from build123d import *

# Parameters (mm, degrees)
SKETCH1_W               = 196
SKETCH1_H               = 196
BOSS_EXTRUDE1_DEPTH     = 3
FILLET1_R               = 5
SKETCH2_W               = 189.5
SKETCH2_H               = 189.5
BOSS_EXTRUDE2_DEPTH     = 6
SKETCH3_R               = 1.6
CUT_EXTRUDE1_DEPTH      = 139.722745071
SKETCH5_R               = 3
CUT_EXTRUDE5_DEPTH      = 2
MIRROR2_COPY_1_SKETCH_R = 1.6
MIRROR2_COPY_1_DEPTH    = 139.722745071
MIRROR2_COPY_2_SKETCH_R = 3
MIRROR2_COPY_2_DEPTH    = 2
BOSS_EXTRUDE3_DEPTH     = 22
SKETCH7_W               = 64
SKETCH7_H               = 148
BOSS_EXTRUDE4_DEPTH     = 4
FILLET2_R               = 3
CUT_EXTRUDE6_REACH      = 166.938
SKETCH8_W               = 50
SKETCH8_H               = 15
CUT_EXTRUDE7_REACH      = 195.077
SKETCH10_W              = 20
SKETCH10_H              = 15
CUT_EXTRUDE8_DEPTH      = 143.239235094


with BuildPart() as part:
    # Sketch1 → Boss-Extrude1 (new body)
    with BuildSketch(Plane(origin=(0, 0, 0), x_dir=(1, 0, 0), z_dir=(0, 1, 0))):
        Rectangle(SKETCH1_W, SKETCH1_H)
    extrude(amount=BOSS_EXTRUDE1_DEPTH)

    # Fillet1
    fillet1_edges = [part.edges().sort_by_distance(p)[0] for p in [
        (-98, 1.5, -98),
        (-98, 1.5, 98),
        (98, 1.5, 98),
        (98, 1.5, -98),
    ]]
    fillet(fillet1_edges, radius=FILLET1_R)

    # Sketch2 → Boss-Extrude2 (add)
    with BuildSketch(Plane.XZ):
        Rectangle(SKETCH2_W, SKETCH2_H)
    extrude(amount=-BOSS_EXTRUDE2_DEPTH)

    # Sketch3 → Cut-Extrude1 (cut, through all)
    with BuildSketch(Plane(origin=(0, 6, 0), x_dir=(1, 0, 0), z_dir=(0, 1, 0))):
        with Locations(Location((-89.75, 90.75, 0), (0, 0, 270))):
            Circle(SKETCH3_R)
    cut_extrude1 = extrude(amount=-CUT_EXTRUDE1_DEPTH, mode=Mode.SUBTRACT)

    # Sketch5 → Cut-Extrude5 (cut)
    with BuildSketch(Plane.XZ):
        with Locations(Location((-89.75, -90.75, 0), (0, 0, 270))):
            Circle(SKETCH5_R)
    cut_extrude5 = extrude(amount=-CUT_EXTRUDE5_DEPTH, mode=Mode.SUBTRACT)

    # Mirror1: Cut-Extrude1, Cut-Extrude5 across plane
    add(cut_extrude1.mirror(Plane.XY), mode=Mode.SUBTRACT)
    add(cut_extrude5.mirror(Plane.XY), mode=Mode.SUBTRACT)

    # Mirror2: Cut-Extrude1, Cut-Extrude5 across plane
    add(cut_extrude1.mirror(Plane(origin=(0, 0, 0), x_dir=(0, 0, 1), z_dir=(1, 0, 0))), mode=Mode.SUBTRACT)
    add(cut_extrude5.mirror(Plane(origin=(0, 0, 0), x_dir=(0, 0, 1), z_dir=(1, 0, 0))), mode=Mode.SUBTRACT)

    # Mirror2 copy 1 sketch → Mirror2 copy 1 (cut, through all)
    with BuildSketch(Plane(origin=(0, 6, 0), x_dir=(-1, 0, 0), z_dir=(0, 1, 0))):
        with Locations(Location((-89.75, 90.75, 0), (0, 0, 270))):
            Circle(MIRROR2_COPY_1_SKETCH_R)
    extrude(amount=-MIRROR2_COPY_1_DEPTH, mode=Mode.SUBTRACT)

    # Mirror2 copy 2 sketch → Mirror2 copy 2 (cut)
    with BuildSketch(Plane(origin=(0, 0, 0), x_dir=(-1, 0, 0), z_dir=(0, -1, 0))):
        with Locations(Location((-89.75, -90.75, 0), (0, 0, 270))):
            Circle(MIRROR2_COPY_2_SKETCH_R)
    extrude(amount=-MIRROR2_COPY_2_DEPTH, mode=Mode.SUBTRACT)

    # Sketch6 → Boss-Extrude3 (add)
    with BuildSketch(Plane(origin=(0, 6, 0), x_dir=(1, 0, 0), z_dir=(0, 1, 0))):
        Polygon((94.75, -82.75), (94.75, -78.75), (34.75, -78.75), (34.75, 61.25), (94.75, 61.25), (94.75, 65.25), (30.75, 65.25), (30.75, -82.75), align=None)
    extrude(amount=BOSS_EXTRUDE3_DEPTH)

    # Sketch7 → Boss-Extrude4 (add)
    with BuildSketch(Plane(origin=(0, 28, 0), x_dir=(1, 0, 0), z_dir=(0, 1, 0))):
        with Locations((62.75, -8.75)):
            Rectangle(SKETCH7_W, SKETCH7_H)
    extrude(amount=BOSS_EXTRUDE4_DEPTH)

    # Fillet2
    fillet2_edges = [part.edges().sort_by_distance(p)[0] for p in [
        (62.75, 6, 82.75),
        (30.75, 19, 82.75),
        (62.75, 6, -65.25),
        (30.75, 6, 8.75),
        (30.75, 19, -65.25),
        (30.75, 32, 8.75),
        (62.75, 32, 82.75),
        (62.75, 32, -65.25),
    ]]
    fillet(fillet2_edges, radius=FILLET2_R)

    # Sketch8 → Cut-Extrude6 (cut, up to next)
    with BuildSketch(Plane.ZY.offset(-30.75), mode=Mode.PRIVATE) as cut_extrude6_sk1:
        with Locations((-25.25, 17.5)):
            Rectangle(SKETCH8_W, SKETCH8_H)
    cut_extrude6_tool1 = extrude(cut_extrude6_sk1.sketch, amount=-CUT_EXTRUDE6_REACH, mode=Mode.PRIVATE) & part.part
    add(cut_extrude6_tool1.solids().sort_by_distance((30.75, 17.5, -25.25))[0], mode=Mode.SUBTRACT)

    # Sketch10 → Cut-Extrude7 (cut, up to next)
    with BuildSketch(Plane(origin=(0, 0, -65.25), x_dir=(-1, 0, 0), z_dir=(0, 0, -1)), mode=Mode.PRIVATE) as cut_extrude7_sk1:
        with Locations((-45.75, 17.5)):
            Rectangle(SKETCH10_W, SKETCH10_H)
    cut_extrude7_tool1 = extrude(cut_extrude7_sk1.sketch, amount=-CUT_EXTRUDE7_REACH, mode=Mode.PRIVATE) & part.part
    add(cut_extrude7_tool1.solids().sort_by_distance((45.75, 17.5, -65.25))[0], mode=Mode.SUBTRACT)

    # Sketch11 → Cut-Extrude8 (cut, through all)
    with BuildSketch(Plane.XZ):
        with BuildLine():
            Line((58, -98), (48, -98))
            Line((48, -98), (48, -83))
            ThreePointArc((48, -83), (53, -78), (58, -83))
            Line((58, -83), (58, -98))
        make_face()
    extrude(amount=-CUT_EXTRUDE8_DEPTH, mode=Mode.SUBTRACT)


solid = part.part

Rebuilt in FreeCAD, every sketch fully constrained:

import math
import FreeCAD as App
import Part
import Sketcher
Q = App.Units.Quantity


def edges_at(feature, points):
    """Names of the edges that pass closest to the given points."""
    edges = feature.Shape.Edges
    near = lambda p: min(range(len(edges)), key=lambda i: edges[i].distToShape(Part.Vertex(*p))[0])
    return sorted({f"Edge{near(p) + 1}" for p in points})

doc = App.newDocument("Part")
body = doc.addObject("PartDesign::Body", "Body")

sketch1 = doc.addObject("Sketcher::SketchObject", "Sketch")
body.addObject(sketch1)
sketch1.AttachmentSupport = (doc.XZ_Plane, [""])
sketch1.MapMode = "FlatFace"
sketch1.addGeometry([
    Part.LineSegment(App.Vector(-98, -98, 0), App.Vector(-98, 98, 0)),
    Part.LineSegment(App.Vector(-98, 98, 0), App.Vector(98, 98, 0)),
    Part.LineSegment(App.Vector(98, 98, 0), App.Vector(98, -98, 0)),
    Part.LineSegment(App.Vector(98, -98, 0), App.Vector(-98, -98, 0)),
], False)
sketch1.addConstraint([
    Sketcher.Constraint("Coincident", 0, 2, 1, 1),
    Sketcher.Constraint("Coincident", 1, 2, 2, 1),
    Sketcher.Constraint("Coincident", 2, 2, 3, 1),
    Sketcher.Constraint("Coincident", 3, 2, 0, 1),
    Sketcher.Constraint("Vertical", 0),
    Sketcher.Constraint("Horizontal", 1),
    Sketcher.Constraint("Vertical", 2),
    Sketcher.Constraint("Horizontal", 3),
    Sketcher.Constraint("Symmetric", 0, 2, 2, 2, -1, 1),
    Sketcher.Constraint("Equal", 3, 0),
    Sketcher.Constraint("DistanceX", 1, 1, 1, 2, Q("196 mm")),
])
pad1 = doc.addObject("PartDesign::Pad", "Pad")
body.addObject(pad1)
pad1.Profile = sketch1
pad1.Length = 3
pad1.Reversed = True
doc.recompute()

fillet = doc.addObject("PartDesign::Fillet", "Fillet")
body.addObject(fillet)
fillet.Base = (pad1, edges_at(pad1, [
    (-98, 1.5, -98),
    (-98, 1.5, 98),
    (98, 1.5, 98),
    (98, 1.5, -98),
]))
fillet.Radius = 5

sketch2 = doc.addObject("Sketcher::SketchObject", "Sketch001")
body.addObject(sketch2)
sketch2.AttachmentSupport = (doc.XZ_Plane, [""])
sketch2.MapMode = "FlatFace"
sketch2.addGeometry([
    Part.LineSegment(App.Vector(-94.75, 94.75, 0), App.Vector(-94.75, -94.75, 0)),
    Part.LineSegment(App.Vector(-94.75, -94.75, 0), App.Vector(94.75, -94.75, 0)),
    Part.LineSegment(App.Vector(94.75, -94.75, 0), App.Vector(94.75, 94.75, 0)),
    Part.LineSegment(App.Vector(94.75, 94.75, 0), App.Vector(-94.75, 94.75, 0)),
], False)
sketch2.addConstraint([
    Sketcher.Constraint("Coincident", 0, 2, 1, 1),
    Sketcher.Constraint("Coincident", 1, 2, 2, 1),
    Sketcher.Constraint("Coincident", 2, 2, 3, 1),
    Sketcher.Constraint("Coincident", 3, 2, 0, 1),
    Sketcher.Constraint("Vertical", 0),
    Sketcher.Constraint("Horizontal", 1),
    Sketcher.Constraint("Vertical", 2),
    Sketcher.Constraint("Horizontal", 3),
    Sketcher.Constraint("Symmetric", 0, 2, 2, 2, -1, 1),
    Sketcher.Constraint("Equal", 3, 0),
    Sketcher.Constraint("DistanceX", 1, 1, 1, 2, Q("189.5 mm")),
])
pad2 = doc.addObject("PartDesign::Pad", "Pad001")
body.addObject(pad2)
pad2.Profile = sketch2
pad2.Length = 6
pad2.Reversed = True

sketch3 = doc.addObject("Sketcher::SketchObject", "Sketch002")
body.addObject(sketch3)
sketch3.AttachmentSupport = (doc.XZ_Plane, [""])
sketch3.MapMode = "FlatFace"
sketch3.AttachmentOffset = App.Placement(App.Vector(0, 0, -6), App.Rotation())
sketch3.addGeometry(Part.Circle(App.Vector(-89.75, -90.75, 0), App.Vector(0, 0, 1), 1.6), False)
sketch3.addConstraint([
    Sketcher.Constraint("Diameter", 0, Q("3.2 mm")),
    Sketcher.Constraint("DistanceX", 0, 3, -1, 1, Q("89.75 mm")),
    Sketcher.Constraint("DistanceY", 0, 3, -1, 1, Q("90.75 mm")),
])
pocket1 = doc.addObject("PartDesign::Pocket", "Pocket")
body.addObject(pocket1)
pocket1.Profile = sketch3
pocket1.Type = "ThroughAll"
pocket1.Reversed = True

sketch4 = doc.addObject("Sketcher::SketchObject", "Sketch003")
body.addObject(sketch4)
sketch4.AttachmentSupport = (doc.XZ_Plane, [""])
sketch4.MapMode = "FlatFace"
sketch4.addGeometry(Part.Circle(App.Vector(-89.75, -90.75, 0), App.Vector(0, 0, 1), 3), False)
sketch4.addConstraint([
    Sketcher.Constraint("Diameter", 0, Q("6 mm")),
    Sketcher.Constraint("DistanceX", 0, 3, -1, 1, Q("89.75 mm")),
    Sketcher.Constraint("DistanceY", 0, 3, -1, 1, Q("90.75 mm")),
])
pocket2 = doc.addObject("PartDesign::Pocket", "Pocket001")
body.addObject(pocket2)
pocket2.Profile = sketch4
pocket2.Length = 2
doc.recompute()

mirrored = doc.addObject("PartDesign::Mirrored", "Mirrored")
body.addObject(mirrored)
mirrored.Originals = [pocket1, pocket2]
mirrored.MirrorPlane = (doc.XY_Plane, [""])
body.Tip = mirrored
doc.recompute()

mirrored2 = doc.addObject("PartDesign::Mirrored", "Mirrored001")
body.addObject(mirrored2)
mirrored2.Originals = [pocket1, pocket2]
mirrored2.MirrorPlane = (doc.YZ_Plane, [""])
body.Tip = mirrored2

sketch5 = doc.addObject("Sketcher::SketchObject", "Sketch004")
body.addObject(sketch5)
sketch5.AttachmentSupport = (doc.XZ_Plane, [""])
sketch5.MapMode = "FlatFace"
sketch5.AttachmentOffset = App.Placement(App.Vector(0, 0, -6), App.Rotation())
sketch5.addGeometry(Part.Circle(App.Vector(89.75, 90.75, 0), App.Vector(0, 0, 1), 1.6), False)
sketch5.addConstraint([
    Sketcher.Constraint("Diameter", 0, Q("3.2 mm")),
    Sketcher.Constraint("DistanceX", -1, 1, 0, 3, Q("89.75 mm")),
    Sketcher.Constraint("DistanceY", -1, 1, 0, 3, Q("90.75 mm")),
])
pocket3 = doc.addObject("PartDesign::Pocket", "Pocket002")
body.addObject(pocket3)
pocket3.Profile = sketch5
pocket3.Type = "ThroughAll"
pocket3.Reversed = True

sketch6 = doc.addObject("Sketcher::SketchObject", "Sketch005")
body.addObject(sketch6)
sketch6.AttachmentSupport = (doc.XZ_Plane, [""])
sketch6.MapMode = "FlatFace"
sketch6.addGeometry(Part.Circle(App.Vector(89.75, 90.75, 0), App.Vector(0, 0, 1), 3), False)
sketch6.addConstraint([
    Sketcher.Constraint("Diameter", 0, Q("6 mm")),
    Sketcher.Constraint("DistanceX", -1, 1, 0, 3, Q("89.75 mm")),
    Sketcher.Constraint("DistanceY", -1, 1, 0, 3, Q("90.75 mm")),
])
pocket4 = doc.addObject("PartDesign::Pocket", "Pocket003")
body.addObject(pocket4)
pocket4.Profile = sketch6
pocket4.Length = 2

sketch7 = doc.addObject("Sketcher::SketchObject", "Sketch006")
body.addObject(sketch7)
sketch7.AttachmentSupport = (doc.XZ_Plane, [""])
sketch7.MapMode = "FlatFace"
sketch7.AttachmentOffset = App.Placement(App.Vector(0, 0, -6), App.Rotation())
sketch7.addGeometry([
    Part.LineSegment(App.Vector(94.75, 82.75, 0), App.Vector(94.75, 78.75, 0)),
    Part.LineSegment(App.Vector(94.75, 78.75, 0), App.Vector(34.75, 78.75, 0)),
    Part.LineSegment(App.Vector(34.75, 78.75, 0), App.Vector(34.75, -61.25, 0)),
    Part.LineSegment(App.Vector(34.75, -61.25, 0), App.Vector(94.75, -61.25, 0)),
    Part.LineSegment(App.Vector(94.75, -61.25, 0), App.Vector(94.75, -65.25, 0)),
    Part.LineSegment(App.Vector(94.75, -65.25, 0), App.Vector(30.75, -65.25, 0)),
    Part.LineSegment(App.Vector(30.75, -65.25, 0), App.Vector(30.75, 82.75, 0)),
    Part.LineSegment(App.Vector(30.75, 82.75, 0), App.Vector(94.75, 82.75, 0)),
], False)
sketch7.addConstraint([
    Sketcher.Constraint("Coincident", 0, 2, 1, 1),
    Sketcher.Constraint("Coincident", 1, 2, 2, 1),
    Sketcher.Constraint("Coincident", 2, 2, 3, 1),
    Sketcher.Constraint("Coincident", 3, 2, 4, 1),
    Sketcher.Constraint("Coincident", 4, 2, 5, 1),
    Sketcher.Constraint("Coincident", 5, 2, 6, 1),
    Sketcher.Constraint("Coincident", 6, 2, 7, 1),
    Sketcher.Constraint("Coincident", 7, 2, 0, 1),
    Sketcher.Constraint("Vertical", 0),
    Sketcher.Constraint("Horizontal", 1),
    Sketcher.Constraint("Vertical", 2),
    Sketcher.Constraint("Horizontal", 3),
    Sketcher.Constraint("Vertical", 4),
    Sketcher.Constraint("Horizontal", 5),
    Sketcher.Constraint("Vertical", 6),
    Sketcher.Constraint("Horizontal", 7),
    Sketcher.Constraint("Vertical", 0, 2, 3, 2),
    Sketcher.Constraint("Equal", 0, 4),
    Sketcher.Constraint("DistanceX", 1, 2, 1, 1, Q("60 mm")),
    Sketcher.Constraint("DistanceX", 5, 2, 5, 1, Q("64 mm")),
    Sketcher.Constraint("DistanceY", 0, 2, 0, 1, Q("4 mm")),
    Sketcher.Constraint("DistanceY", 2, 2, 2, 1, Q("140 mm")),
    Sketcher.Constraint("DistanceX", -1, 1, 0, 2, Q("94.75 mm")),
    Sketcher.Constraint("DistanceY", -1, 1, 0, 2, Q("78.75 mm")),
])
pad3 = doc.addObject("PartDesign::Pad", "Pad002")
body.addObject(pad3)
pad3.Profile = sketch7
pad3.Length = 22
pad3.Reversed = True

sketch8 = doc.addObject("Sketcher::SketchObject", "Sketch007")
body.addObject(sketch8)
sketch8.AttachmentSupport = (doc.XZ_Plane, [""])
sketch8.MapMode = "FlatFace"
sketch8.AttachmentOffset = App.Placement(App.Vector(0, 0, -28), App.Rotation())
sketch8.addGeometry([
    Part.LineSegment(App.Vector(30.75, -65.25, 0), App.Vector(30.75, 82.75, 0)),
    Part.LineSegment(App.Vector(30.75, 82.75, 0), App.Vector(94.75, 82.75, 0)),
    Part.LineSegment(App.Vector(94.75, 82.75, 0), App.Vector(94.75, -65.25, 0)),
    Part.LineSegment(App.Vector(94.75, -65.25, 0), App.Vector(30.75, -65.25, 0)),
], False)
sketch8.addConstraint([
    Sketcher.Constraint("Coincident", 0, 2, 1, 1),
    Sketcher.Constraint("Coincident", 1, 2, 2, 1),
    Sketcher.Constraint("Coincident", 2, 2, 3, 1),
    Sketcher.Constraint("Coincident", 3, 2, 0, 1),
    Sketcher.Constraint("Vertical", 0),
    Sketcher.Constraint("Horizontal", 1),
    Sketcher.Constraint("Vertical", 2),
    Sketcher.Constraint("Horizontal", 3),
    Sketcher.Constraint("DistanceX", 1, 1, 1, 2, Q("64 mm")),
    Sketcher.Constraint("DistanceY", 0, 1, 0, 2, Q("148 mm")),
    Sketcher.Constraint("DistanceX", -1, 1, 0, 2, Q("30.75 mm")),
    Sketcher.Constraint("DistanceY", -1, 1, 0, 2, Q("82.75 mm")),
])
pad4 = doc.addObject("PartDesign::Pad", "Pad003")
body.addObject(pad4)
pad4.Profile = sketch8
pad4.Length = 4
pad4.Reversed = True
doc.recompute()

fillet2 = doc.addObject("PartDesign::Fillet", "Fillet001")
body.addObject(fillet2)
fillet2.Base = (pad4, edges_at(pad4, [
    (62.75, 6, 82.75),
    (30.75, 19, 82.75),
    (62.75, 6, -65.25),
    (30.75, 6, 8.75),
    (30.75, 19, -65.25),
    (30.75, 32, 8.75),
    (62.75, 32, 82.75),
    (62.75, 32, -65.25),
]))
fillet2.Radius = 3

sketch9 = doc.addObject("Sketcher::SketchObject", "Sketch008")
body.addObject(sketch9)
sketch9.AttachmentSupport = (doc.YZ_Plane, [""])
sketch9.MapMode = "FlatFace"
sketch9.AttachmentOffset = App.Placement(App.Vector(0, 0, 30.75), App.Rotation())
sketch9.addGeometry([
    Part.LineSegment(App.Vector(25, -50.25, 0), App.Vector(10, -50.25, 0)),
    Part.LineSegment(App.Vector(10, -50.25, 0), App.Vector(10, -0.25, 0)),
    Part.LineSegment(App.Vector(10, -0.25, 0), App.Vector(25, -0.25, 0)),
    Part.LineSegment(App.Vector(25, -0.25, 0), App.Vector(25, -50.25, 0)),
], False)
sketch9.addConstraint([
    Sketcher.Constraint("Coincident", 0, 2, 1, 1),
    Sketcher.Constraint("Coincident", 1, 2, 2, 1),
    Sketcher.Constraint("Coincident", 2, 2, 3, 1),
    Sketcher.Constraint("Coincident", 3, 2, 0, 1),
    Sketcher.Constraint("Horizontal", 0),
    Sketcher.Constraint("Vertical", 1),
    Sketcher.Constraint("Horizontal", 2),
    Sketcher.Constraint("Vertical", 3),
    Sketcher.Constraint("DistanceX", 0, 2, 0, 1, Q("15 mm")),
    Sketcher.Constraint("DistanceY", 1, 1, 1, 2, Q("50 mm")),
    Sketcher.Constraint("DistanceX", -1, 1, 0, 2, Q("10 mm")),
    Sketcher.Constraint("DistanceY", 0, 2, -1, 1, Q("50.25 mm")),
])
pocket5 = doc.addObject("PartDesign::Pocket", "Pocket004")
body.addObject(pocket5)
pocket5.Profile = sketch9
pocket5.Type = "UpToFirst"
pocket5.Reversed = True

sketch10 = doc.addObject("Sketcher::SketchObject", "Sketch009")
body.addObject(sketch10)
sketch10.AttachmentSupport = (doc.XY_Plane, [""])
sketch10.MapMode = "FlatFace"
sketch10.AttachmentOffset = App.Placement(App.Vector(0, 0, -65.25), App.Rotation())
sketch10.addGeometry([
    Part.LineSegment(App.Vector(55.75, 25, 0), App.Vector(55.75, 10, 0)),
    Part.LineSegment(App.Vector(55.75, 10, 0), App.Vector(35.75, 10, 0)),
    Part.LineSegment(App.Vector(35.75, 10, 0), App.Vector(35.75, 25, 0)),
    Part.LineSegment(App.Vector(35.75, 25, 0), App.Vector(55.75, 25, 0)),
], False)
sketch10.addConstraint([
    Sketcher.Constraint("Coincident", 0, 2, 1, 1),
    Sketcher.Constraint("Coincident", 1, 2, 2, 1),
    Sketcher.Constraint("Coincident", 2, 2, 3, 1),
    Sketcher.Constraint("Coincident", 3, 2, 0, 1),
    Sketcher.Constraint("Vertical", 0),
    Sketcher.Constraint("Horizontal", 1),
    Sketcher.Constraint("Vertical", 2),
    Sketcher.Constraint("Horizontal", 3),
    Sketcher.Constraint("DistanceX", 1, 2, 1, 1, Q("20 mm")),
    Sketcher.Constraint("DistanceY", 0, 2, 0, 1, Q("15 mm")),
    Sketcher.Constraint("DistanceY", -1, 1, 0, 2, Q("10 mm")),
    Sketcher.Constraint("DistanceX", -1, 1, 0, 2, Q("55.75 mm")),
])
pocket6 = doc.addObject("PartDesign::Pocket", "Pocket005")
body.addObject(pocket6)
pocket6.Profile = sketch10
pocket6.Type = "UpToFirst"
pocket6.Reversed = True

sketch11 = doc.addObject("Sketcher::SketchObject", "Sketch010")
body.addObject(sketch11)
sketch11.AttachmentSupport = (doc.XZ_Plane, [""])
sketch11.MapMode = "FlatFace"
sketch11.addGeometry([
    Part.LineSegment(App.Vector(48, -98, 0), App.Vector(58, -98, 0)),
    Part.LineSegment(App.Vector(58, -98, 0), App.Vector(58, -83, 0)),
    Part.ArcOfCircle(Part.Circle(App.Vector(53, -83, 0), App.Vector(0, 0, 1), 5), math.radians(0), math.radians(180)),
    Part.LineSegment(App.Vector(48, -83, 0), App.Vector(48, -98, 0)),
], False)
sketch11.addConstraint([
    Sketcher.Constraint("Coincident", 0, 2, 1, 1),
    Sketcher.Constraint("Tangent", 1, 2, 2, 1),
    Sketcher.Constraint("Tangent", 2, 2, 3, 1),
    Sketcher.Constraint("Coincident", 3, 2, 0, 1),
    Sketcher.Constraint("Horizontal", 0),
    Sketcher.Constraint("Vertical", 1),
    Sketcher.Constraint("Vertical", 3),
    Sketcher.Constraint("Radius", 2, Q("5 mm")),
    Sketcher.Constraint("DistanceY", 1, 1, 1, 2, Q("15 mm")),
    Sketcher.Constraint("DistanceX", -1, 1, 2, 3, Q("53 mm")),
    Sketcher.Constraint("DistanceY", 2, 3, -1, 1, Q("83 mm")),
])
pocket7 = doc.addObject("PartDesign::Pocket", "Pocket006")
body.addObject(pocket7)
pocket7.Profile = sketch11
pocket7.Type = "ThroughAll"

doc.recompute()
